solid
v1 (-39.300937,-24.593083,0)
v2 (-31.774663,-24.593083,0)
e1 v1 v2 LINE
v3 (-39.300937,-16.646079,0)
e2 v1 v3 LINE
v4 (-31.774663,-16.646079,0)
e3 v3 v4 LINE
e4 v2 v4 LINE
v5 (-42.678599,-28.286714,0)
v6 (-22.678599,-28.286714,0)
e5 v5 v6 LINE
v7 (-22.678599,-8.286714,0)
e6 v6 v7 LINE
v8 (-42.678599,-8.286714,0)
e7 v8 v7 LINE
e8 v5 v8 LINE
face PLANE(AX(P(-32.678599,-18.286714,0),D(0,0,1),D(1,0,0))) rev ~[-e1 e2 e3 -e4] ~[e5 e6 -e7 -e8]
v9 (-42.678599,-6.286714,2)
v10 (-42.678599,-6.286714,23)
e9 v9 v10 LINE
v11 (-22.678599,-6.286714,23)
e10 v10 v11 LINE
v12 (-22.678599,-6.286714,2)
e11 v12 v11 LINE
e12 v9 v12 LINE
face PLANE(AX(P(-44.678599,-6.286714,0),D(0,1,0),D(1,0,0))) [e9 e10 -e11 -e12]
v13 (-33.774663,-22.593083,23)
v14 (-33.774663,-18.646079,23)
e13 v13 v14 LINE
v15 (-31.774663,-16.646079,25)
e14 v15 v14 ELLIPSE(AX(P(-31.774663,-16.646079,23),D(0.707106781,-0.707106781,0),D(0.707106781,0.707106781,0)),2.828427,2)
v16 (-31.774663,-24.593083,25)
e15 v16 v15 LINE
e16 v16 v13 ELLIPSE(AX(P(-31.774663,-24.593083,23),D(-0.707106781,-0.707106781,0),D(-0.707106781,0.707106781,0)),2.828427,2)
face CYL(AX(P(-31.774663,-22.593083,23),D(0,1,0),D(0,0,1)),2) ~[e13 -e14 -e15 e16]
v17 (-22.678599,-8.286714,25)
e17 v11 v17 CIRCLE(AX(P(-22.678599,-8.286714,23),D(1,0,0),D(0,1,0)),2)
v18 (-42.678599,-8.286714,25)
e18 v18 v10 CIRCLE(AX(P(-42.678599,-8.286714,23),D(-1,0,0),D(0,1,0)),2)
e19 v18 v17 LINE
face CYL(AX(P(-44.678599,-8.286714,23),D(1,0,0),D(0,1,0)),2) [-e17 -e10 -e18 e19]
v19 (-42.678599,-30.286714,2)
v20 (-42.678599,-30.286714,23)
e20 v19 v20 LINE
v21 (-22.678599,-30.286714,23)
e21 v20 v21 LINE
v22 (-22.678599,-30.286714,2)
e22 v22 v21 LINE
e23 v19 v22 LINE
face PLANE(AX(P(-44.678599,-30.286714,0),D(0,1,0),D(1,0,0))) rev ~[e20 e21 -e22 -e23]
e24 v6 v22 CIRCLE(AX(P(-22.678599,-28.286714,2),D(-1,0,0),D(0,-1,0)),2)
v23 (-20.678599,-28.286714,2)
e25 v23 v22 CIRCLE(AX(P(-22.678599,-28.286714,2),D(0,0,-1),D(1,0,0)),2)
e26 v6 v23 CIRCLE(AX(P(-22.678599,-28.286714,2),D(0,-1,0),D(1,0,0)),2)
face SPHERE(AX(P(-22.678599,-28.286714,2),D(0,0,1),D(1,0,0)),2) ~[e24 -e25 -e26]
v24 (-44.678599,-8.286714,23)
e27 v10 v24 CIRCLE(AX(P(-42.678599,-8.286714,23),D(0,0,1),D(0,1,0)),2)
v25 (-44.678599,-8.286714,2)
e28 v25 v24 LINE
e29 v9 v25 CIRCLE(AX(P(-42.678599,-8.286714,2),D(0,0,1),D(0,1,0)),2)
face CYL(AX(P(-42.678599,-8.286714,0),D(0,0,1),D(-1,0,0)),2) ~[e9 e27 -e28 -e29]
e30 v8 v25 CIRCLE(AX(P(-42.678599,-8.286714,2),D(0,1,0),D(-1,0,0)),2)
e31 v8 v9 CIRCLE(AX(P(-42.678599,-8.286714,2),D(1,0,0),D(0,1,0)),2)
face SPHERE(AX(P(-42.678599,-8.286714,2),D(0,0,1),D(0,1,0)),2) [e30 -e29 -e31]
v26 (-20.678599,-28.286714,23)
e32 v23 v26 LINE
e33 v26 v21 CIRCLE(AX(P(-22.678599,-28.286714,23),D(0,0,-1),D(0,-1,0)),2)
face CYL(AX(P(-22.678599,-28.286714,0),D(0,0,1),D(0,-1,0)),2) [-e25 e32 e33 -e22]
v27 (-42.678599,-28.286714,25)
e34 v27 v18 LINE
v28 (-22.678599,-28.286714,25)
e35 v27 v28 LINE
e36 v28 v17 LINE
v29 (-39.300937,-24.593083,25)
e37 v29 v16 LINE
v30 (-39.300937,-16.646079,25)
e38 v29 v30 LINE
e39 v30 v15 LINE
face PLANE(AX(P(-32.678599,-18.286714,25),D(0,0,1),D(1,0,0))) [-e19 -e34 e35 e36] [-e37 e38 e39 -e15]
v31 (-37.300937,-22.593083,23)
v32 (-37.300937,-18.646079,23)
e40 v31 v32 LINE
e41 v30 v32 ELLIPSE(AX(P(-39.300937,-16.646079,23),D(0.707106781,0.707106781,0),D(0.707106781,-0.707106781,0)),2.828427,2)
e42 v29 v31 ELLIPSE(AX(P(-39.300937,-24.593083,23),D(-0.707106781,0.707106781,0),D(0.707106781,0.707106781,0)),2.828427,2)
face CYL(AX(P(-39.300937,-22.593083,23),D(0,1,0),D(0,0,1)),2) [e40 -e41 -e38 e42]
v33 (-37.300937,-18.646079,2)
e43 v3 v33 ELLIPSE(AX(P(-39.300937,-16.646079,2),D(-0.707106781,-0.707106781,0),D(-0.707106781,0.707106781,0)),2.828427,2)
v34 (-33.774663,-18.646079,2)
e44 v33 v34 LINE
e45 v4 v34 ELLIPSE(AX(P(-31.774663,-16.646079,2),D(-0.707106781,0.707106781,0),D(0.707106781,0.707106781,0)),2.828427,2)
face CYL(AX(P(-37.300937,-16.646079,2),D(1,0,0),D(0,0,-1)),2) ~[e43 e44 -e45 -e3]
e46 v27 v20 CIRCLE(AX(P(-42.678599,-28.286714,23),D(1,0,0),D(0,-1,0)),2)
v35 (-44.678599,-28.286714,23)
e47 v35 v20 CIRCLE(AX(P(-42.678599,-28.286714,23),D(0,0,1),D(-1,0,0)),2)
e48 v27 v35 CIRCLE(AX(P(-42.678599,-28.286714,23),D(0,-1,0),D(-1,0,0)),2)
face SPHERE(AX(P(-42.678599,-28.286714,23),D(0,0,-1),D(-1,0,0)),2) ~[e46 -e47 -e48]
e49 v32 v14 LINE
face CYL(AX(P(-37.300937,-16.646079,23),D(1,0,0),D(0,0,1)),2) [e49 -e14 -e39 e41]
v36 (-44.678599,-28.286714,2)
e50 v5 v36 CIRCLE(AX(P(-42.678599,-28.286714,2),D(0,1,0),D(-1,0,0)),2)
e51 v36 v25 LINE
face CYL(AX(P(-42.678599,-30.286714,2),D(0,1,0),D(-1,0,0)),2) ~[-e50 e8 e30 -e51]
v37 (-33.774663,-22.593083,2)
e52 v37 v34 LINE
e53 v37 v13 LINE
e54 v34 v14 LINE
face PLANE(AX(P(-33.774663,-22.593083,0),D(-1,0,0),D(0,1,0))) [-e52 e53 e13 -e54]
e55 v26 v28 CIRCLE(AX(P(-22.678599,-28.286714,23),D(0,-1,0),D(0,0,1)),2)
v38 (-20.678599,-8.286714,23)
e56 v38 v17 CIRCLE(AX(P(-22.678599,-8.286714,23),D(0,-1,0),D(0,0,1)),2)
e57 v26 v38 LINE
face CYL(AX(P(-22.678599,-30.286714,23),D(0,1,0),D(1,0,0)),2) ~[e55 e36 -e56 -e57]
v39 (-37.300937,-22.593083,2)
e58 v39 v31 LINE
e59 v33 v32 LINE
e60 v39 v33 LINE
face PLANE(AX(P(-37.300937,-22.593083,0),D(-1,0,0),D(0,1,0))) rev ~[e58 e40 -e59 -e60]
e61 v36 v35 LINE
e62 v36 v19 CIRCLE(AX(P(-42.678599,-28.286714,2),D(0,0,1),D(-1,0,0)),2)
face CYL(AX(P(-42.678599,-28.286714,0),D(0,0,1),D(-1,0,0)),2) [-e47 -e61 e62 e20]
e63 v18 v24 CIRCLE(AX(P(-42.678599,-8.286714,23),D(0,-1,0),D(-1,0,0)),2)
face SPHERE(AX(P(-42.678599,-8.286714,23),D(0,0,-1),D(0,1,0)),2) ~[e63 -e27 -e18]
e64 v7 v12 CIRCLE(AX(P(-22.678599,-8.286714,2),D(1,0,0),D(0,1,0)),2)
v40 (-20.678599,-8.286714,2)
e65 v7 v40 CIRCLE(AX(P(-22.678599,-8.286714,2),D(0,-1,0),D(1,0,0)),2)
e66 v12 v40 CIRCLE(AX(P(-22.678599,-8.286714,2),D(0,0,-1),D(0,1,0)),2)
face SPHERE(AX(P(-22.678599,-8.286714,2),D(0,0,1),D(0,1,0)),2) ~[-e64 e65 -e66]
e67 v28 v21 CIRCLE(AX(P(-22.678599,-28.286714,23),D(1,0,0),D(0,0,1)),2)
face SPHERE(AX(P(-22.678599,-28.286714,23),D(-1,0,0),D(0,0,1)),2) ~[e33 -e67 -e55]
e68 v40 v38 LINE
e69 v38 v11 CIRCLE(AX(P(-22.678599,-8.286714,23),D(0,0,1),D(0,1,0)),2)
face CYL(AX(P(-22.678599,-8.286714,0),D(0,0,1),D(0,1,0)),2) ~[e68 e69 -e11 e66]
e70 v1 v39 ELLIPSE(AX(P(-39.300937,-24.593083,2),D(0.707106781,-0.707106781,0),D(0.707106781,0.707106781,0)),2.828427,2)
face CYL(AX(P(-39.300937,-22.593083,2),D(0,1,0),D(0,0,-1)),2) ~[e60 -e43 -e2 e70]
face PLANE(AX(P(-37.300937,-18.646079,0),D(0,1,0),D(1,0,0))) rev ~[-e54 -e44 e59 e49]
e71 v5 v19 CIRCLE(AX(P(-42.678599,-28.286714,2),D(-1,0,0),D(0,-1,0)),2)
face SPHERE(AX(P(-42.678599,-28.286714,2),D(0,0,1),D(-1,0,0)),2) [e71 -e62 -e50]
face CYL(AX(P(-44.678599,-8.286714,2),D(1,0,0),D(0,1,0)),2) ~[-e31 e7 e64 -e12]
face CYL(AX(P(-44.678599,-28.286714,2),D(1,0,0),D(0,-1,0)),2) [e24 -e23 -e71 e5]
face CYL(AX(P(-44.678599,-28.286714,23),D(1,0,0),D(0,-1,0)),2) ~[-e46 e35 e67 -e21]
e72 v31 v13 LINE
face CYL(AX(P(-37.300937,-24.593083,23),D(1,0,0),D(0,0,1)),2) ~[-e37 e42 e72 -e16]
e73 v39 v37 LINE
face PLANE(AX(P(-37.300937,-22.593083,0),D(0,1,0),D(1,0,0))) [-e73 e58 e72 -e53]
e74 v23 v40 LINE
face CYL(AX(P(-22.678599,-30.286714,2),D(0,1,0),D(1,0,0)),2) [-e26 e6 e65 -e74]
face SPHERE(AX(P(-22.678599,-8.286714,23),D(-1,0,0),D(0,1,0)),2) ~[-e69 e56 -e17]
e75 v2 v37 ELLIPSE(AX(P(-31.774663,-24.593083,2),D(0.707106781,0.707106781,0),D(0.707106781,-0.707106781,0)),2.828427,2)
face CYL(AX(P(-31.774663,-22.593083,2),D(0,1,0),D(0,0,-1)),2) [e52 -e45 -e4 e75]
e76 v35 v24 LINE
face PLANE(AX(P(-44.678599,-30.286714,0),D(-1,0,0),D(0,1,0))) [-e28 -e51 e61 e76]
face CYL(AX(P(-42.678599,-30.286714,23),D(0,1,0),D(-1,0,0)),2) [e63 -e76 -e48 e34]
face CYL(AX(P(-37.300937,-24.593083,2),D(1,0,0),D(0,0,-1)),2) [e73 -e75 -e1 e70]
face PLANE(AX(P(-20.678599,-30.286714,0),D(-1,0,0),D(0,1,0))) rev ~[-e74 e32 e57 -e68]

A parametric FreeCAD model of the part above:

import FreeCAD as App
import Part
import Sketcher
from FreeCAD import Vector
Q = App.Units.Quantity


def edges_at(feature, points):
    """Names of the edges that pass closest to the given points."""
    edges = feature.Shape.Edges
    near = lambda p: min(range(len(edges)), key=lambda i: edges[i].distToShape(Part.Vertex(*p))[0])
    return sorted({f"Edge{near(p) + 1}" for p in points})

doc = App.newDocument("Part")
body = doc.addObject("PartDesign::Body", "Body")

sketch1 = body.newObject("Sketcher::SketchObject", "Sketch")
sketch1.AttachmentSupport = (doc.getObject("XY_Plane"), [""])
sketch1.MapMode = "FlatFace"
sketch1.addGeometry([
    Part.LineSegment(Vector(-44.7, -6.3, 0), Vector(-44.7, -30.3, 0)),
    Part.LineSegment(Vector(-44.7, -30.3, 0), Vector(-20.7, -30.3, 0)),
    Part.LineSegment(Vector(-20.7, -30.3, 0), Vector(-20.7, -6.3, 0)),
    Part.LineSegment(Vector(-20.7, -6.3, 0), Vector(-44.7, -6.3, 0)),
    Part.LineSegment(Vector(-33.8, -22.6, 0), Vector(-37.3, -22.6, 0)),
    Part.LineSegment(Vector(-37.3, -22.6, 0), Vector(-37.3, -18.6, 0)),
    Part.LineSegment(Vector(-37.3, -18.6, 0), Vector(-33.8, -18.6, 0)),
    Part.LineSegment(Vector(-33.8, -18.6, 0), Vector(-33.8, -22.6, 0)),
], False)
sketch1.addConstraint([
    Sketcher.Constraint("Coincident", 0, 2, 1, 1),
    Sketcher.Constraint("Coincident", 1, 2, 2, 1),
    Sketcher.Constraint("Coincident", 2, 2, 3, 1),
    Sketcher.Constraint("Coincident", 3, 2, 0, 1),
    Sketcher.Constraint("Coincident", 4, 2, 5, 1),
    Sketcher.Constraint("Coincident", 5, 2, 6, 1),
    Sketcher.Constraint("Coincident", 6, 2, 7, 1),
    Sketcher.Constraint("Coincident", 7, 2, 4, 1),
    Sketcher.Constraint("Vertical", 0),
    Sketcher.Constraint("Horizontal", 1),
    Sketcher.Constraint("Vertical", 2),
    Sketcher.Constraint("Horizontal", 3),
    Sketcher.Constraint("Horizontal", 4),
    Sketcher.Constraint("Vertical", 5),
    Sketcher.Constraint("Horizontal", 6),
    Sketcher.Constraint("Vertical", 7),
    Sketcher.Constraint("Equal", 3, 0),
    Sketcher.Constraint("DistanceX", 1, 1, 1, 2, Q("24 mm")),
    Sketcher.Constraint("DistanceX", 0, 2, -1, 1, Q("44.678599 mm")),
    Sketcher.Constraint("DistanceX", 4, 2, 4, 1, Q("3.526274 mm")),
    Sketcher.Constraint("DistanceY", 5, 1, 5, 2, Q("3.947003 mm")),
    Sketcher.Constraint("DistanceY", 5, 2, -1, 1, Q("18.646079 mm")),
    Sketcher.Constraint("DistanceY", 0, 2, 4, 2, Q("7.693631 mm")),
    Sketcher.Constraint("DistanceX", 4, 2, -1, 1, Q("37.300937 mm")),
])
pad1 = body.newObject("PartDesign::Pad", "Pad")
pad1.Profile = sketch1
pad1.Length = 25
doc.recompute()

fillet = body.newObject("PartDesign::Fillet", "Fillet")
fillet.Base = (pad1, edges_at(pad1, [
    (-44.679, -6.287, 12.5),
    (-32.679, -6.287, 25),
    (-20.679, -6.287, 12.5),
    (-32.679, -6.287, 0),
    (-44.679, -30.287, 12.5),
    (-44.679, -18.287, 0),
    (-44.679, -18.287, 25),
    (-32.679, -30.287, 25),
    (-20.679, -18.287, 25),
    (-20.679, -30.287, 12.5),
    (-20.679, -18.287, 0),
    (-32.679, -30.287, 0),
]))
fillet.Radius = 2
doc.recompute()

fillet2 = body.newObject("PartDesign::Fillet", "Fillet001")
fillet2.Base = (fillet, edges_at(fillet, [
    (-33.775, -20.62, 25),
    (-35.538, -22.593, 0),
    (-35.538, -18.646, 25),
    (-37.301, -20.62, 25),
    (-35.538, -22.593, 25),
    (-37.301, -20.62, 0),
    (-35.538, -18.646, 0),
    (-33.775, -20.62, 0),
]))
fillet2.Radius = 2

doc.recompute()
